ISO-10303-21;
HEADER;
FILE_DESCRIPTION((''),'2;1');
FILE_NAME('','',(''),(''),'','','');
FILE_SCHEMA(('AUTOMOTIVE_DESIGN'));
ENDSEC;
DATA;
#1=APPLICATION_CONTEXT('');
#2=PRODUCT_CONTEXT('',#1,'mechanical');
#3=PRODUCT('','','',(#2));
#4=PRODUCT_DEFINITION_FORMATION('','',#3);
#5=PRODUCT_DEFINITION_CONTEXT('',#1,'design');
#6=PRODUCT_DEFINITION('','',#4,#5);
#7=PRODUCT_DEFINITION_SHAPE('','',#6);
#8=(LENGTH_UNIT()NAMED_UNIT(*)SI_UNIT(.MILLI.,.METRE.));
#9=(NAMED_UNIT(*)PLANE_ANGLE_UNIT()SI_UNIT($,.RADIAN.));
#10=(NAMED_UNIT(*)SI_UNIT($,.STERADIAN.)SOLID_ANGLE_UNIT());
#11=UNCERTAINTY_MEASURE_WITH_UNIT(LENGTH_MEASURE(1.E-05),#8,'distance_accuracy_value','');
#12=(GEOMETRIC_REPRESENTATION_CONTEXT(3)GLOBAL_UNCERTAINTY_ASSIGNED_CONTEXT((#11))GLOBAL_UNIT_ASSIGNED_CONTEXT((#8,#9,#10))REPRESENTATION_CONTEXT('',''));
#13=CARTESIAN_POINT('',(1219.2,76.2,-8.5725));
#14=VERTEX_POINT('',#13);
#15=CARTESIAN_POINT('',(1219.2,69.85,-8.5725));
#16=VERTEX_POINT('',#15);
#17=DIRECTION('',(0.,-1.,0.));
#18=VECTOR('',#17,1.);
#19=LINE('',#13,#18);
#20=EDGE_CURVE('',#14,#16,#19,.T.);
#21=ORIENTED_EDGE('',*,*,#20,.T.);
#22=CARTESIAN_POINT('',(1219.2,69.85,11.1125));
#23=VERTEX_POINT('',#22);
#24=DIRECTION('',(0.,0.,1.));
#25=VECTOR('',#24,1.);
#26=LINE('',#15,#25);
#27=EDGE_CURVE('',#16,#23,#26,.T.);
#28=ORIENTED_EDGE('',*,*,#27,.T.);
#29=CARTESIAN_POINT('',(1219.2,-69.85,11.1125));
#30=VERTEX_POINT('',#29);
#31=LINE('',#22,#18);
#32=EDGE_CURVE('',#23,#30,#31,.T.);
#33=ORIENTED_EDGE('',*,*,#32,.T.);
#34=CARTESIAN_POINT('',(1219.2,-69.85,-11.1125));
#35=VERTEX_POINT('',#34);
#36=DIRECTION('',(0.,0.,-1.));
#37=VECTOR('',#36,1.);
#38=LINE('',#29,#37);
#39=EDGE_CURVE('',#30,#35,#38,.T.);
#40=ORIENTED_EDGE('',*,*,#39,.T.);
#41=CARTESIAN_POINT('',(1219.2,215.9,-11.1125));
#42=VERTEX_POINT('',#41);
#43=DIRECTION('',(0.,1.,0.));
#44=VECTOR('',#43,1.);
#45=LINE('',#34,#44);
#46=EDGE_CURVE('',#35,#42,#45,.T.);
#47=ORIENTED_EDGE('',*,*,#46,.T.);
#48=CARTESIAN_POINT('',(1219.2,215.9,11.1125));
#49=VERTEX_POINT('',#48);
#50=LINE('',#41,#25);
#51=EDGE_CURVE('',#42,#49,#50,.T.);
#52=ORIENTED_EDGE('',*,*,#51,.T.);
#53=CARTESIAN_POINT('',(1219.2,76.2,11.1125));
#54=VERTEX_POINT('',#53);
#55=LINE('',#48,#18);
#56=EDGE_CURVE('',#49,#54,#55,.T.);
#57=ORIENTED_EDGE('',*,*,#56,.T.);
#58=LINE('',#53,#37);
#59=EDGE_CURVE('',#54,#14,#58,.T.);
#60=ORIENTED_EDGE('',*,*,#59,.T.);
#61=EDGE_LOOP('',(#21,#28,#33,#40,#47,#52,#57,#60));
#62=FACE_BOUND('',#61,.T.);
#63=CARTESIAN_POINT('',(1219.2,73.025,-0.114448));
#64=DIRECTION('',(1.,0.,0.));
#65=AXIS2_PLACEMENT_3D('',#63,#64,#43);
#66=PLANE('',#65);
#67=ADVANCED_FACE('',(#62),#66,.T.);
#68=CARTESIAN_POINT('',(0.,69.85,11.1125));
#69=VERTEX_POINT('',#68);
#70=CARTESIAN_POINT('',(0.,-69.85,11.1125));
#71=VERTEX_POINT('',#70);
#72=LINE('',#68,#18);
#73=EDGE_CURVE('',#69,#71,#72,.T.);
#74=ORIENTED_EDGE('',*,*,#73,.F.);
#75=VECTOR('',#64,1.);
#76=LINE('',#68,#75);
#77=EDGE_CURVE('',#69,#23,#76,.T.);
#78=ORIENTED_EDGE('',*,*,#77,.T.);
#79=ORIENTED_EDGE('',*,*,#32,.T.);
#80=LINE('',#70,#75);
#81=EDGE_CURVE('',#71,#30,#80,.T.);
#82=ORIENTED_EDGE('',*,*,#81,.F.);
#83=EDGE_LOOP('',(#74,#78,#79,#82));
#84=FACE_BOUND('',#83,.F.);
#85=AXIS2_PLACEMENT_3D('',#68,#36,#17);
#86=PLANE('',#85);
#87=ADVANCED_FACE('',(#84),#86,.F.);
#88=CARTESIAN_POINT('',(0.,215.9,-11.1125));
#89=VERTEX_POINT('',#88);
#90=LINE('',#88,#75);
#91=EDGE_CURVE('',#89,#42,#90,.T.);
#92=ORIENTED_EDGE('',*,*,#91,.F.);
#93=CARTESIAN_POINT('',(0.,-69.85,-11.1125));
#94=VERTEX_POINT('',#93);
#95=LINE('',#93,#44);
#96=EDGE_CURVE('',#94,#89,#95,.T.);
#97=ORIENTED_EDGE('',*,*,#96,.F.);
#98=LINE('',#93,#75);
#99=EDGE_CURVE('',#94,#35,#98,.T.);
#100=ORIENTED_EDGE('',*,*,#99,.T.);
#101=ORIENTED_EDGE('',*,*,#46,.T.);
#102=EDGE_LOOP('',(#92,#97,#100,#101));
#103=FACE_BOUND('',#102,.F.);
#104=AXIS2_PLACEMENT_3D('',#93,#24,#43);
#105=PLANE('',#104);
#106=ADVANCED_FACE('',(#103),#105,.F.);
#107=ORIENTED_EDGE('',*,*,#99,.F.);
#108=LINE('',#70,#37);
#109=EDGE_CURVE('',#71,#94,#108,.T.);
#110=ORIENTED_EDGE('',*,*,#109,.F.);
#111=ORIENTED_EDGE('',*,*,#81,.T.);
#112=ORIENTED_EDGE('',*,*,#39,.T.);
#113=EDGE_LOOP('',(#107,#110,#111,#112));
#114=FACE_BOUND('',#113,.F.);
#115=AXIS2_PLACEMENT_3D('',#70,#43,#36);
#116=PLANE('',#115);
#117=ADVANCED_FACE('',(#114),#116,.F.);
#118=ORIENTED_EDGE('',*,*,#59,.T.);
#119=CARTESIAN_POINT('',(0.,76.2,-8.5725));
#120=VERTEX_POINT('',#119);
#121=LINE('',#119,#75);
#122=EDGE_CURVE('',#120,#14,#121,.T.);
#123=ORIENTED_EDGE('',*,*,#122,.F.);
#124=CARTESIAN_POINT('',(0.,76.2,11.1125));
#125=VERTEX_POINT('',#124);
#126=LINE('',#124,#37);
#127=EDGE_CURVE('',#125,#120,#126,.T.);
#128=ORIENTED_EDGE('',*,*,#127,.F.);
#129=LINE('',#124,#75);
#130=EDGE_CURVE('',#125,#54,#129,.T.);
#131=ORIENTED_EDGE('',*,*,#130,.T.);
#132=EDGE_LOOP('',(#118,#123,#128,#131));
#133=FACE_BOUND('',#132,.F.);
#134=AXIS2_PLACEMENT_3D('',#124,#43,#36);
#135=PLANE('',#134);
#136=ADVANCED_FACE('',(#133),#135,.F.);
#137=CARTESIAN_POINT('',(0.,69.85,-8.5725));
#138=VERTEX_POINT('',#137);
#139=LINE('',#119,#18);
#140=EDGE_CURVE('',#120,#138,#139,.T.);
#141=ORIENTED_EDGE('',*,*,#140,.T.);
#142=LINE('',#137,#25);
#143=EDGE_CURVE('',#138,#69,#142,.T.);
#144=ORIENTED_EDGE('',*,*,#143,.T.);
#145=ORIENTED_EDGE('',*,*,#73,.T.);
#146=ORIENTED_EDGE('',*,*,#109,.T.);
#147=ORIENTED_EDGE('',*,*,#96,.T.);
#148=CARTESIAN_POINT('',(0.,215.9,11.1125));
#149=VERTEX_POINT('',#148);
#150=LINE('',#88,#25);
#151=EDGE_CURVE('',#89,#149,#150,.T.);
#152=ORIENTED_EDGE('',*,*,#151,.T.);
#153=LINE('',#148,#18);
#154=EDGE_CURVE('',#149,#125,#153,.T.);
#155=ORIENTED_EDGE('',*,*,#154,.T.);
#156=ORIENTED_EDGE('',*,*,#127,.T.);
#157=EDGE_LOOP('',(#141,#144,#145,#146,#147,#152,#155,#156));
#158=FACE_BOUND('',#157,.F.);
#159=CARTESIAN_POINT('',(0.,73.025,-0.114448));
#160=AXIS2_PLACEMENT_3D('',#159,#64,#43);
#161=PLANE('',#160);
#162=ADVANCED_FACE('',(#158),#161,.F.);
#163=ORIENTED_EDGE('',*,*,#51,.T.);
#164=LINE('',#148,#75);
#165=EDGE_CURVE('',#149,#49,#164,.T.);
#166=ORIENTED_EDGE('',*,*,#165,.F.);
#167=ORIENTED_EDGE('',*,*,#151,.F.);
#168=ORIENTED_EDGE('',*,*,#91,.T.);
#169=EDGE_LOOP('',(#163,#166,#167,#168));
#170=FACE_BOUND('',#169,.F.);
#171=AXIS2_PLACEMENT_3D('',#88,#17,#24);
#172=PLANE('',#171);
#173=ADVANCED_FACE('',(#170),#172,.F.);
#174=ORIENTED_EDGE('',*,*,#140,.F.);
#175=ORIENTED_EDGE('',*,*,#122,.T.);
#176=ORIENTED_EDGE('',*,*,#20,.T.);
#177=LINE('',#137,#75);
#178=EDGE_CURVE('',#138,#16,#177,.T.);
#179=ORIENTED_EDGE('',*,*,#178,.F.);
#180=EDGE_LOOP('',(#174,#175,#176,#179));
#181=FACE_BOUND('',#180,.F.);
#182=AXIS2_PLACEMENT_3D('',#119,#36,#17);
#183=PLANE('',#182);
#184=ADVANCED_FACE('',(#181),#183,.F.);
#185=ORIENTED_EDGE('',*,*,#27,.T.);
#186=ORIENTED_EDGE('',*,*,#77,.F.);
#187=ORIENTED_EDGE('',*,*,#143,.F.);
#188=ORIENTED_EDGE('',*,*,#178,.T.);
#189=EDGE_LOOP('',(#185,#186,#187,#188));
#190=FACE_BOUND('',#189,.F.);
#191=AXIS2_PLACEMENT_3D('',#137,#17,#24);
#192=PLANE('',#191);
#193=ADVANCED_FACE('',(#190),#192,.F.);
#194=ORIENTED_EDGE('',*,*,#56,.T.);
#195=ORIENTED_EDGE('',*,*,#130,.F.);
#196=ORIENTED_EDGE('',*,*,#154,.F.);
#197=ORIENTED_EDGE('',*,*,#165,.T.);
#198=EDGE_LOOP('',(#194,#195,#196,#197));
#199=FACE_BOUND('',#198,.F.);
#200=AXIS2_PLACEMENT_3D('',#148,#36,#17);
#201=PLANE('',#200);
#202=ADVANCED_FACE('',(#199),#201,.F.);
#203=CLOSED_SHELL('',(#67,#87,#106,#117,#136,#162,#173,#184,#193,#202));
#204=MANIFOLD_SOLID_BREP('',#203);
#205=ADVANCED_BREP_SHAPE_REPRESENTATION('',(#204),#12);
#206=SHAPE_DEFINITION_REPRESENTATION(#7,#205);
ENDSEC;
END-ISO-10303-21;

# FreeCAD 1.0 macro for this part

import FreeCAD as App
import Part
import Sketcher
Q = App.Units.Quantity


def add_polygon(sketch, points):
    """Adds a closed chain of lines whose ends are joined by coincident constraints."""
    first, n = sketch.GeometryCount, len(points)
    for a, b in zip(points, points[1:] + points[:1]):
        sketch.addGeometry(Part.LineSegment(App.Vector(*a, 0), App.Vector(*b, 0)), False)
    for i in range(n):
        sketch.addConstraint(Sketcher.Constraint("Coincident", first + i, 2, first + (i + 1) % n, 1))

doc = App.newDocument("Part")
body = doc.addObject("PartDesign::Body", "Body")

# Sketch on YZ plane
sketch1 = body.newObject("Sketcher::SketchObject", "Sketch")
sketch1.AttachmentSupport = (doc.getObject("YZ_Plane"), [""])
sketch1.MapMode = "FlatFace"
add_polygon(sketch1, [(-69.85, -11.1125), (215.9, -11.1125), (215.9, 11.1125), (76.2, 11.1125), (76.2, -8.5725), (69.85, -8.5725), (69.85, 11.1125), (-69.85, 11.1125)])  # lines 0-7
sketch1.addConstraint(Sketcher.Constraint("Horizontal", 0))
sketch1.addConstraint(Sketcher.Constraint("Vertical", 1))
sketch1.addConstraint(Sketcher.Constraint("Horizontal", 2))
sketch1.addConstraint(Sketcher.Constraint("Vertical", 3))
sketch1.addConstraint(Sketcher.Constraint("Horizontal", 4))
sketch1.addConstraint(Sketcher.Constraint("Vertical", 5))
sketch1.addConstraint(Sketcher.Constraint("Horizontal", 6))
sketch1.addConstraint(Sketcher.Constraint("Vertical", 7))
sketch1.addConstraint(Sketcher.Constraint("Symmetric", 5, 2, 7, 2, -1, 1))
sketch1.addConstraint(Sketcher.Constraint("Horizontal", 2, 2, 5, 2))
sketch1.addConstraint(Sketcher.Constraint("Equal", 2, 6))
sketch1.addConstraint(Sketcher.Constraint("DistanceX", 2, 2, 2, 1, Q("5.5 in")))
sketch1.addConstraint(Sketcher.Constraint("DistanceX", -1, 1, 2, 2, Q("3 in")))
sketch1.addConstraint(Sketcher.Constraint("DistanceY", 0, 2, 3, 2, Q("0.1 in")))
sketch1.addConstraint(Sketcher.Constraint("DistanceY", 1, 1, 1, 2, Q("0.875 in")))
pad1 = body.newObject("PartDesign::Pad", "Pad")
pad1.Profile = sketch1
pad1.Length = Q("48 in")

doc.recompute()
